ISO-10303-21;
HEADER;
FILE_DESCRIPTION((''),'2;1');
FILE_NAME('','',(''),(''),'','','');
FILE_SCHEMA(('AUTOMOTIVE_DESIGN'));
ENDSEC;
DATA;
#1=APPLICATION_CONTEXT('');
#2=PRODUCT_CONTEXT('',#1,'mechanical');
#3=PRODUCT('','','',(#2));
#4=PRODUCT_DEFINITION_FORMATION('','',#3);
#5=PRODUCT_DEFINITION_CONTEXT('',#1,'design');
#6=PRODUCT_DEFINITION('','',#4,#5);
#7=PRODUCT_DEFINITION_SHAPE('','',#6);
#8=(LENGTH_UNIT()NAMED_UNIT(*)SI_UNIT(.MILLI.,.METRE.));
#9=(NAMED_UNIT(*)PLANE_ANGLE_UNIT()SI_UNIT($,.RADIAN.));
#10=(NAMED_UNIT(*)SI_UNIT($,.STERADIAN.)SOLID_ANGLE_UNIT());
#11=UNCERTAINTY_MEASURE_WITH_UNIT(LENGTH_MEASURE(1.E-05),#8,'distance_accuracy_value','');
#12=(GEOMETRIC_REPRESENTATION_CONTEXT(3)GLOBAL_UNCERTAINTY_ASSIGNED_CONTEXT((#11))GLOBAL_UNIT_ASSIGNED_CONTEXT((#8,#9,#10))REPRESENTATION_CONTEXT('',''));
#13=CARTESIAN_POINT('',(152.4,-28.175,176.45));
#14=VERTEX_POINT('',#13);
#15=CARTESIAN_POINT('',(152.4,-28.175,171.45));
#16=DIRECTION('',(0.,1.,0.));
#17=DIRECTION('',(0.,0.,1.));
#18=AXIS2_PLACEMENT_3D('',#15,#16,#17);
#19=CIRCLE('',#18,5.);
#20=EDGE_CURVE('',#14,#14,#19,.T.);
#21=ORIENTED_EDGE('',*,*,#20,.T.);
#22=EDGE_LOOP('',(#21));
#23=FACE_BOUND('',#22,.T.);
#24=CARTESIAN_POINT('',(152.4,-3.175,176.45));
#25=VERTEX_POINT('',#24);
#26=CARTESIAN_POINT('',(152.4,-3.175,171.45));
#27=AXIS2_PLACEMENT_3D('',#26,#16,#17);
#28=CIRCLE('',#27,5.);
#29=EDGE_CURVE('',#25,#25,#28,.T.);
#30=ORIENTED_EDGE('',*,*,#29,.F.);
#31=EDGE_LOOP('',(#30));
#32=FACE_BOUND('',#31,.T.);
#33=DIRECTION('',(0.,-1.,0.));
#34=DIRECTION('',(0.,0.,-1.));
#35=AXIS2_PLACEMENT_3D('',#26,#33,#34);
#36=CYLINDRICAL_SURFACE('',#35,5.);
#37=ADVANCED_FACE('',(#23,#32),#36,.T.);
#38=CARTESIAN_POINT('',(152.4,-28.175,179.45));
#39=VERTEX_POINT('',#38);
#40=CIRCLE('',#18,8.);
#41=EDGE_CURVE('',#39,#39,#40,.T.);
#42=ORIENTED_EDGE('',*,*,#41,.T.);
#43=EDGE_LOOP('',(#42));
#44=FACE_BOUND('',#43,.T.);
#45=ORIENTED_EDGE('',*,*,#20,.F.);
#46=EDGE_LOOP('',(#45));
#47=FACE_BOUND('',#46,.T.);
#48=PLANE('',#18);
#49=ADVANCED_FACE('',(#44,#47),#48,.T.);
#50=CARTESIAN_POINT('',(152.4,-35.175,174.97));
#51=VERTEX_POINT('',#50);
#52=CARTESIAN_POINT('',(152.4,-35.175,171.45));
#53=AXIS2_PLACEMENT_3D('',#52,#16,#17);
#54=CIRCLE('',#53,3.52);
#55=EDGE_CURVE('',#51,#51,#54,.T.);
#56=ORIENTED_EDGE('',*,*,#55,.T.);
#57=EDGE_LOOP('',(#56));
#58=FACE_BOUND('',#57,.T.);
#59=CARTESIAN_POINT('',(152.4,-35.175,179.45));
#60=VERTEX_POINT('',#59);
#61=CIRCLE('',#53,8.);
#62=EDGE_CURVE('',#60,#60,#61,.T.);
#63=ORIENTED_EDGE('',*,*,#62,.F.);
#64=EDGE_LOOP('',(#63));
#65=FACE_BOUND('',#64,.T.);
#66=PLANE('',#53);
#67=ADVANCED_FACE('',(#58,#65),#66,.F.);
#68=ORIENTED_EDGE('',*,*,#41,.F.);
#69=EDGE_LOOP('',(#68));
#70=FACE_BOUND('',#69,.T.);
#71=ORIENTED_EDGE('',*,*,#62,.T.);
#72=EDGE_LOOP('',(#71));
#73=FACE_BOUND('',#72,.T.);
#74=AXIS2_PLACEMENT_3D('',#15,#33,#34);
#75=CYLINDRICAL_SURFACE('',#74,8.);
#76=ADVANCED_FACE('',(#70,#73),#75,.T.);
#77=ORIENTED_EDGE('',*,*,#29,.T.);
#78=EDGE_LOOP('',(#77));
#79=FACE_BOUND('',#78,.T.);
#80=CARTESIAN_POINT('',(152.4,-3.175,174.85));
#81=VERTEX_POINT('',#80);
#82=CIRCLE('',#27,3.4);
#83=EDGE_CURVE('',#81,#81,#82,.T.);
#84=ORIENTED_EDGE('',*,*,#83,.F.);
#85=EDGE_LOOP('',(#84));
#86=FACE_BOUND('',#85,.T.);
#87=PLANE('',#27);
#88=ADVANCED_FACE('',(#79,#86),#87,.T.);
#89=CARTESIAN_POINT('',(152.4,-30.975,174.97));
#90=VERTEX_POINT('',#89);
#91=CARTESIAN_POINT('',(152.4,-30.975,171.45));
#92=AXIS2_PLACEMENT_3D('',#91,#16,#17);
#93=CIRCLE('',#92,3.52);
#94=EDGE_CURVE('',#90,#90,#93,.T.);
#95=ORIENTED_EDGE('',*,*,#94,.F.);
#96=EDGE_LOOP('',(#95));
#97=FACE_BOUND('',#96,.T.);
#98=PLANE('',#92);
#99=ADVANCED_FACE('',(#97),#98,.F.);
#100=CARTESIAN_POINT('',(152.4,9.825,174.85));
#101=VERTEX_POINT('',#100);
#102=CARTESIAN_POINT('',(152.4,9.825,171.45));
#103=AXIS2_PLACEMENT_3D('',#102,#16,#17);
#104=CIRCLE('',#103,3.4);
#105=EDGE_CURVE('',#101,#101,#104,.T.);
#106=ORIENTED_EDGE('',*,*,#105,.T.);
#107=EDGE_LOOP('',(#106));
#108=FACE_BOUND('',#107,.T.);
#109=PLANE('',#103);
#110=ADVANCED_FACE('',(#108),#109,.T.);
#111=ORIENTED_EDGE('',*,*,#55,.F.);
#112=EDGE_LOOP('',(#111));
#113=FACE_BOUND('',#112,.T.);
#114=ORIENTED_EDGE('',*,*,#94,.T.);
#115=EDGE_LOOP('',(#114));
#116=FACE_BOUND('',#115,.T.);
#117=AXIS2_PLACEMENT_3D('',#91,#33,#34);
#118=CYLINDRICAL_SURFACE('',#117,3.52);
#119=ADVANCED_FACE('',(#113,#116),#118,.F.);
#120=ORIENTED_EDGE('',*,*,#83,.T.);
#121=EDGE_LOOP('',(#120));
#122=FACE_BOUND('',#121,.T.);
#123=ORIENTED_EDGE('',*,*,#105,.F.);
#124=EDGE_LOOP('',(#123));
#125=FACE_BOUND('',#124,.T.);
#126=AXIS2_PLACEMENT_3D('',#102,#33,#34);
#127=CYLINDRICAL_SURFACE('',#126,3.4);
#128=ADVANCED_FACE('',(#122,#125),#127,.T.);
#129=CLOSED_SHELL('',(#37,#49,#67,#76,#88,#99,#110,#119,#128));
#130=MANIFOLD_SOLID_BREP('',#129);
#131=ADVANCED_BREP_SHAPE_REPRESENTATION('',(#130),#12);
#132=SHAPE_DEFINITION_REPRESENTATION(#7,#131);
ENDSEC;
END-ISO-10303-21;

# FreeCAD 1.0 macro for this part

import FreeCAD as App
import Part
import Sketcher
from FreeCAD import Vector

doc = App.newDocument("Part")
params = doc.addObject("Spreadsheet::Sheet", "Params")
for row, (alias, value) in enumerate([
    ("sketch1_diameter", "6.8 mm"),
    ("pad1_length", "13 mm"),
    ("sketch2_diameter", "10 mm"),
    ("pad2_length", "25 mm"),
    ("sketch3_diameter", "16 mm"),
    ("pad3_length", "7 mm"),
    ("sketch4_diameter", "7.04 mm"),
    ("pocket1_length", "4.2 mm"),
], start=1):
    params.set(f"A{row}", alias)
    params.set(f"B{row}", "=" + value)
    params.setAlias(f"B{row}", alias)

body = doc.addObject("PartDesign::Body", "Body")

sketch1 = body.newObject("Sketcher::SketchObject", "Sketch")
sketch1.AttachmentSupport = (doc.getObject("XZ_Plane"), [""])
sketch1.MapMode = "FlatFace"
sketch1.AttachmentOffset = App.Placement(Vector(0, 0, 3.175), App.Rotation())
sketch1.addGeometry(Part.Circle(Vector(152.4, 171.4, 0), Vector(0, 0, 1), 3.4), False)
sketch1.addConstraint([
    Sketcher.Constraint("Diameter", 0, 6.8),
    Sketcher.Constraint("DistanceX", -1, 1, 0, 3, 152.4),
    Sketcher.Constraint("DistanceY", -1, 1, 0, 3, 171.45),
])
sketch1.setExpression("Constraints[0]", "Params.sketch1_diameter")
pad1 = body.newObject("PartDesign::Pad", "Pad")
pad1.Profile = sketch1
pad1.setExpression("Length", "Params.pad1_length")
pad1.Reversed = True

sketch2 = body.newObject("Sketcher::SketchObject", "Sketch001")
sketch2.AttachmentSupport = (doc.getObject("XZ_Plane"), [""])
sketch2.MapMode = "FlatFace"
sketch2.AttachmentOffset = App.Placement(Vector(0, 0, 28.175), App.Rotation())
sketch2.addGeometry(Part.Circle(Vector(152, 171, 0), Vector(0, 0, 1), 5), False)
sketch2.addConstraint([
    Sketcher.Constraint("Diameter", 0, 10.0),
    Sketcher.Constraint("DistanceX", -1, 1, 0, 3, 152.4),
    Sketcher.Constraint("DistanceY", -1, 1, 0, 3, 171.45),
])
sketch2.setExpression("Constraints[0]", "Params.sketch2_diameter")
pad2 = body.newObject("PartDesign::Pad", "Pad001")
pad2.Profile = sketch2
pad2.setExpression("Length", "Params.pad2_length")
pad2.Reversed = True

sketch3 = body.newObject("Sketcher::SketchObject", "Sketch002")
sketch3.AttachmentSupport = (doc.getObject("XZ_Plane"), [""])
sketch3.MapMode = "FlatFace"
sketch3.AttachmentOffset = App.Placement(Vector(0, 0, 35.175), App.Rotation())
sketch3.addGeometry(Part.Circle(Vector(152, 171, 0), Vector(0, 0, 1), 8), False)
sketch3.addConstraint([
    Sketcher.Constraint("Diameter", 0, 16.0),
    Sketcher.Constraint("DistanceX", -1, 1, 0, 3, 152.4),
    Sketcher.Constraint("DistanceY", -1, 1, 0, 3, 171.45),
])
sketch3.setExpression("Constraints[0]", "Params.sketch3_diameter")
pad3 = body.newObject("PartDesign::Pad", "Pad002")
pad3.Profile = sketch3
pad3.setExpression("Length", "Params.pad3_length")
pad3.Reversed = True

sketch4 = body.newObject("Sketcher::SketchObject", "Sketch003")
sketch4.AttachmentSupport = (doc.getObject("XZ_Plane"), [""])
sketch4.MapMode = "FlatFace"
sketch4.AttachmentOffset = App.Placement(Vector(0, 0, 35.175), App.Rotation())
sketch4.addGeometry(Part.Circle(Vector(152.4, 171.4, 0), Vector(0, 0, 1), 3.5), False)
sketch4.addConstraint([
    Sketcher.Constraint("Diameter", 0, 7.04),
    Sketcher.Constraint("DistanceX", -1, 1, 0, 3, 152.4),
    Sketcher.Constraint("DistanceY", -1, 1, 0, 3, 171.45),
])
sketch4.setExpression("Constraints[0]", "Params.sketch4_diameter")
pocket1 = body.newObject("PartDesign::Pocket", "Pocket")
pocket1.Profile = sketch4
pocket1.setExpression("Length", "Params.pocket1_length")

doc.recompute()
